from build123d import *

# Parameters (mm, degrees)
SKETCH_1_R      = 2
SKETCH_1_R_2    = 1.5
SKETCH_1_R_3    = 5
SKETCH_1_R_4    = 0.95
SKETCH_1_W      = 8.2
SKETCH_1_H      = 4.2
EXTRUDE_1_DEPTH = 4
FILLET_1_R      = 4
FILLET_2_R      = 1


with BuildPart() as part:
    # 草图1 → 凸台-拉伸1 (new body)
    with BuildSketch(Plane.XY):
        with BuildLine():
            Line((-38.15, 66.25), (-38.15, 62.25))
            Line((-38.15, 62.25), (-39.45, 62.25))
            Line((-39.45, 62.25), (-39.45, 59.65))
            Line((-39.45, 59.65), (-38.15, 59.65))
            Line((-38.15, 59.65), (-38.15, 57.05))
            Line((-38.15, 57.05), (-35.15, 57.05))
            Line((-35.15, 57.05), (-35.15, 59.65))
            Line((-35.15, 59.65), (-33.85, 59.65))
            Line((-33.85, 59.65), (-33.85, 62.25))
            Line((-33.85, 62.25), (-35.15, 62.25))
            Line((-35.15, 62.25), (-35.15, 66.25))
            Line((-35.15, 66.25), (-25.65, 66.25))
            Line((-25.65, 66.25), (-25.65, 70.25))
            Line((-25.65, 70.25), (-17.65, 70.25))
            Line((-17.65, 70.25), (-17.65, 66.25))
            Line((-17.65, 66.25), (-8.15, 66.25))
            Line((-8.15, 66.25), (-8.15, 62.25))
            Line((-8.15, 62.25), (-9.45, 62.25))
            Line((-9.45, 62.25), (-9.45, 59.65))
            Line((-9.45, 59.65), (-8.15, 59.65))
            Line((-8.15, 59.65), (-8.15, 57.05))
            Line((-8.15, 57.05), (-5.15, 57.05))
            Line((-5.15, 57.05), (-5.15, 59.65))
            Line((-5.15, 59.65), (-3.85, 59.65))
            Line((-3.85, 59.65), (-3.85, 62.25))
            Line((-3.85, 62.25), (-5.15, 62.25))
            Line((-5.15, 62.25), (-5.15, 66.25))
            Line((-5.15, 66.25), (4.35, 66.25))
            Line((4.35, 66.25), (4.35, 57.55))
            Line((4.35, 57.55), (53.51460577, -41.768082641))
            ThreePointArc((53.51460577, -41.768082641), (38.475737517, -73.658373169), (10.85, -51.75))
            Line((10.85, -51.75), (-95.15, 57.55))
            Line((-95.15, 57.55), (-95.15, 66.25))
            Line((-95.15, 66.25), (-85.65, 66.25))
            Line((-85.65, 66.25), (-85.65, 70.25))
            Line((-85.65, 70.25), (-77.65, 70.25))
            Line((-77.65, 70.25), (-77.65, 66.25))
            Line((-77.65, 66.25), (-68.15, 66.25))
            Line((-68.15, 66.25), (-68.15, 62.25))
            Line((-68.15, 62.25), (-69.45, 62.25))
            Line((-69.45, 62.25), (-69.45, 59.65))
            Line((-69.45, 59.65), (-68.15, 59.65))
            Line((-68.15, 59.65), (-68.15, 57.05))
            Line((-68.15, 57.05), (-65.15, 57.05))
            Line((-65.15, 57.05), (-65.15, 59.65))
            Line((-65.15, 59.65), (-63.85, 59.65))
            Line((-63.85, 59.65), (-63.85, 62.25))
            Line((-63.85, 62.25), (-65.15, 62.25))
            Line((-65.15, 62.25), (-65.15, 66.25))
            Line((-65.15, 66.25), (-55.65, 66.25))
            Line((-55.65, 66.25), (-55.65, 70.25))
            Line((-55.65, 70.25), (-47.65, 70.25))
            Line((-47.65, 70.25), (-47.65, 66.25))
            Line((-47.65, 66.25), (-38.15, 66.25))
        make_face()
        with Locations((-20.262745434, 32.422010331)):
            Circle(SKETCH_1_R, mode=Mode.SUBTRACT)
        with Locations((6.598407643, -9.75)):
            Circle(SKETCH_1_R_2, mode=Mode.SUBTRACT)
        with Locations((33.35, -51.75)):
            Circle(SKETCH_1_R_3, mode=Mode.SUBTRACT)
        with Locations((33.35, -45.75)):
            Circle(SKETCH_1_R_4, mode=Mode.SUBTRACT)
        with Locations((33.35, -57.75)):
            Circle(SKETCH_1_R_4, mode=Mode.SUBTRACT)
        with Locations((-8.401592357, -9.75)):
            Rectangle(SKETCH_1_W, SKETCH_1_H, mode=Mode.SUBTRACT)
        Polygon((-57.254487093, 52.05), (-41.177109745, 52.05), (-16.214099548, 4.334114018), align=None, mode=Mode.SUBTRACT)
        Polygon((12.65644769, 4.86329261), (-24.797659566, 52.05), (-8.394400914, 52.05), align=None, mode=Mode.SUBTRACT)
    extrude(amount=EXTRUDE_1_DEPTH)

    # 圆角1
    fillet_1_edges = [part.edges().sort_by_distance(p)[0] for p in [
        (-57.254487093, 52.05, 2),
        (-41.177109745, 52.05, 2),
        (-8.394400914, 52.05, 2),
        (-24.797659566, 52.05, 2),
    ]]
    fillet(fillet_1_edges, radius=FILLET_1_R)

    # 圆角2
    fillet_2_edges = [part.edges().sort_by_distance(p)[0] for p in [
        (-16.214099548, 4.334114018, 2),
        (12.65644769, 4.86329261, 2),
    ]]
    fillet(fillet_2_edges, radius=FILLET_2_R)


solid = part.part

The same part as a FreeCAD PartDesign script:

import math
import FreeCAD as App
import Part
import Sketcher
from FreeCAD import Vector
Q = App.Units.Quantity


def edges_at(feature, points):
    """Names of the edges that pass closest to the given points."""
    edges = feature.Shape.Edges
    near = lambda p: min(range(len(edges)), key=lambda i: edges[i].distToShape(Part.Vertex(*p))[0])
    return sorted({f"Edge{near(p) + 1}" for p in points})

doc = App.newDocument("Part")
body = doc.addObject("PartDesign::Body", "Body")

# Sketch on XY plane
sketch1 = body.newObject("Sketcher::SketchObject", "Sketch")
sketch1.AttachmentSupport = (doc.getObject("XY_Plane"), [""])
sketch1.MapMode = "FlatFace"
sketch1.addGeometry(Part.LineSegment(Vector(-38.1, 62.2, 0), Vector(-38.1, 66.2, 0)), False)
sketch1.addGeometry(Part.LineSegment(Vector(-38.1, 66.2, 0), Vector(-47.6, 66.2, 0)), False)
sketch1.addGeometry(Part.LineSegment(Vector(-47.6, 66.2, 0), Vector(-47.6, 70.2, 0)), False)
sketch1.addGeometry(Part.LineSegment(Vector(-47.6, 70.2, 0), Vector(-55.6, 70.2, 0)), False)
sketch1.addGeometry(Part.LineSegment(Vector(-55.6, 70.2, 0), Vector(-55.6, 66.2, 0)), False)
sketch1.addGeometry(Part.LineSegment(Vector(-55.6, 66.2, 0), Vector(-65.2, 66.2, 0)), False)
sketch1.addGeometry(Part.LineSegment(Vector(-65.2, 66.2, 0), Vector(-65.2, 62.2, 0)), False)
sketch1.addGeometry(Part.LineSegment(Vector(-65.2, 62.2, 0), Vector(-63.9, 62.2, 0)), False)
sketch1.addGeometry(Part.LineSegment(Vector(-63.9, 62.2, 0), Vector(-63.9, 59.6, 0)), False)
sketch1.addGeometry(Part.LineSegment(Vector(-63.9, 59.6, 0), Vector(-65.2, 59.6, 0)), False)
sketch1.addGeometry(Part.LineSegment(Vector(-65.2, 59.6, 0), Vector(-65.2, 57, 0)), False)
sketch1.addGeometry(Part.LineSegment(Vector(-65.2, 57, 0), Vector(-68.2, 57, 0)), False)
sketch1.addGeometry(Part.LineSegment(Vector(-68.2, 57, 0), Vector(-68.2, 59.6, 0)), False)
sketch1.addGeometry(Part.LineSegment(Vector(-68.2, 59.6, 0), Vector(-69.5, 59.6, 0)), False)
sketch1.addGeometry(Part.LineSegment(Vector(-69.5, 59.6, 0), Vector(-69.5, 62.2, 0)), False)
sketch1.addGeometry(Part.LineSegment(Vector(-69.5, 62.2, 0), Vector(-68.2, 62.2, 0)), False)
sketch1.addGeometry(Part.LineSegment(Vector(-68.2, 62.2, 0), Vector(-68.2, 66.2, 0)), False)
sketch1.addGeometry(Part.LineSegment(Vector(-68.2, 66.2, 0), Vector(-77.7, 66.2, 0)), False)
sketch1.addGeometry(Part.LineSegment(Vector(-77.7, 66.2, 0), Vector(-77.7, 70.2, 0)), False)
sketch1.addGeometry(Part.LineSegment(Vector(-77.7, 70.2, 0), Vector(-85.7, 70.2, 0)), False)
sketch1.addGeometry(Part.LineSegment(Vector(-85.7, 70.2, 0), Vector(-85.7, 66.2, 0)), False)
sketch1.addGeometry(Part.LineSegment(Vector(-85.7, 66.2, 0), Vector(-95.2, 66.2, 0)), False)
sketch1.addGeometry(Part.LineSegment(Vector(-95.2, 66.2, 0), Vector(-95.2, 57.5, 0)), False)
sketch1.addGeometry(Part.LineSegment(Vector(-95.2, 57.5, 0), Vector(10.8, -51.8, 0)), False)
sketch1.addGeometry(Part.ArcOfCircle(Part.Circle(Vector(33.4, -51.8, 0), Vector(0, 0, 1), 22.5), math.radians(180), math.radians(386)), False)
sketch1.addGeometry(Part.LineSegment(Vector(53.5, -41.8, 0), Vector(4.3, 57.5, 0)), False)
sketch1.addGeometry(Part.LineSegment(Vector(4.3, 57.5, 0), Vector(4.3, 66.2, 0)), False)
sketch1.addGeometry(Part.LineSegment(Vector(4.3, 66.2, 0), Vector(-5.2, 66.2, 0)), False)
sketch1.addGeometry(Part.LineSegment(Vector(-5.2, 66.2, 0), Vector(-5.2, 62.2, 0)), False)
sketch1.addGeometry(Part.LineSegment(Vector(-5.2, 62.2, 0), Vector(-3.9, 62.2, 0)), False)
sketch1.addGeometry(Part.LineSegment(Vector(-3.9, 62.2, 0), Vector(-3.9, 59.6, 0)), False)
sketch1.addGeometry(Part.LineSegment(Vector(-3.9, 59.6, 0), Vector(-5.2, 59.6, 0)), False)
sketch1.addGeometry(Part.LineSegment(Vector(-5.2, 59.6, 0), Vector(-5.2, 57, 0)), False)
sketch1.addGeometry(Part.LineSegment(Vector(-5.2, 57, 0), Vector(-8.2, 57, 0)), False)
sketch1.addGeometry(Part.LineSegment(Vector(-8.2, 57, 0), Vector(-8.2, 59.6, 0)), False)
sketch1.addGeometry(Part.LineSegment(Vector(-8.2, 59.6, 0), Vector(-9.4, 59.6, 0)), False)
sketch1.addGeometry(Part.LineSegment(Vector(-9.4, 59.6, 0), Vector(-9.4, 62.2, 0)), False)
sketch1.addGeometry(Part.LineSegment(Vector(-9.4, 62.2, 0), Vector(-8.2, 62.2, 0)), False)
sketch1.addGeometry(Part.LineSegment(Vector(-8.2, 62.2, 0), Vector(-8.2, 66.2, 0)), False)
sketch1.addGeometry(Part.LineSegment(Vector(-8.2, 66.2, 0), Vector(-17.6, 66.2, 0)), False)
sketch1.addGeometry(Part.LineSegment(Vector(-17.6, 66.2, 0), Vector(-17.6, 70.2, 0)), False)
sketch1.addGeometry(Part.LineSegment(Vector(-17.6, 70.2, 0), Vector(-25.6, 70.2, 0)), False)
sketch1.addGeometry(Part.LineSegment(Vector(-25.6, 70.2, 0), Vector(-25.6, 66.2, 0)), False)
sketch1.addGeometry(Part.LineSegment(Vector(-25.6, 66.2, 0), Vector(-35.1, 66.2, 0)), False)
sketch1.addGeometry(Part.LineSegment(Vector(-35.1, 66.2, 0), Vector(-35.1, 62.2, 0)), False)
sketch1.addGeometry(Part.LineSegment(Vector(-35.1, 62.2, 0), Vector(-33.9, 62.2, 0)), False)
sketch1.addGeometry(Part.LineSegment(Vector(-33.9, 62.2, 0), Vector(-33.9, 59.6, 0)), False)
sketch1.addGeometry(Part.LineSegment(Vector(-33.9, 59.6, 0), Vector(-35.1, 59.6, 0)), False)
sketch1.addGeometry(Part.LineSegment(Vector(-35.1, 59.6, 0), Vector(-35.1, 57, 0)), False)
sketch1.addGeometry(Part.LineSegment(Vector(-35.1, 57, 0), Vector(-38.1, 57, 0)), False)
sketch1.addGeometry(Part.LineSegment(Vector(-38.1, 57, 0), Vector(-38.1, 59.6, 0)), False)
sketch1.addGeometry(Part.LineSegment(Vector(-38.1, 59.6, 0), Vector(-39.5, 59.6, 0)), False)
sketch1.addGeometry(Part.LineSegment(Vector(-39.5, 59.6, 0), Vector(-39.5, 62.2, 0)), False)
sketch1.addGeometry(Part.LineSegment(Vector(-39.5, 62.2, 0), Vector(-38.1, 62.2, 0)), False)
sketch1.addGeometry(Part.Circle(Vector(33.4, -57.8, 0), Vector(0, 0, 1), 0.9), False)
sketch1.addGeometry(Part.Circle(Vector(33.4, -51.8, 0), Vector(0, 0, 1), 5), False)
sketch1.addGeometry(Part.Circle(Vector(33.4, -45.8, 0), Vector(0, 0, 1), 0.9), False)
sketch1.addGeometry(Part.Circle(Vector(6.6, -9.8, 0), Vector(0, 0, 1), 1.5), False)
sketch1.addGeometry(Part.LineSegment(Vector(-12.5, -11.8, 0), Vector(-12.5, -7.7, 0)), False)
sketch1.addGeometry(Part.LineSegment(Vector(-12.5, -7.7, 0), Vector(-4.3, -7.7, 0)), False)
sketch1.addGeometry(Part.LineSegment(Vector(-4.3, -7.7, 0), Vector(-4.3, -11.8, 0)), False)
sketch1.addGeometry(Part.LineSegment(Vector(-4.3, -11.8, 0), Vector(-12.5, -11.8, 0)), False)
sketch1.addGeometry(Part.LineSegment(Vector(12.7, 4.9, 0), Vector(-24.8, 52, 0)), False)
sketch1.addGeometry(Part.LineSegment(Vector(-24.8, 52, 0), Vector(-8.4, 52, 0)), False)
sketch1.addGeometry(Part.LineSegment(Vector(-8.4, 52, 0), Vector(12.7, 4.9, 0)), False)
sketch1.addGeometry(Part.Circle(Vector(-20.3, 32.4, 0), Vector(0, 0, 1), 2), False)
sketch1.addGeometry(Part.LineSegment(Vector(-57.3, 52, 0), Vector(-41.2, 52, 0)), False)
sketch1.addGeometry(Part.LineSegment(Vector(-41.2, 52, 0), Vector(-16.2, 4.3, 0)), False)
sketch1.addGeometry(Part.LineSegment(Vector(-16.2, 4.3, 0), Vector(-57.3, 52, 0)), False)
sketch1.addConstraint(Sketcher.Constraint("Coincident", 0, 2, 1, 1))
sketch1.addConstraint(Sketcher.Constraint("Coincident", 1, 2, 2, 1))
sketch1.addConstraint(Sketcher.Constraint("Coincident", 2, 2, 3, 1))
sketch1.addConstraint(Sketcher.Constraint("Coincident", 3, 2, 4, 1))
sketch1.addConstraint(Sketcher.Constraint("Coincident", 4, 2, 5, 1))
sketch1.addConstraint(Sketcher.Constraint("Coincident", 5, 2, 6, 1))
sketch1.addConstraint(Sketcher.Constraint("Coincident", 6, 2, 7, 1))
sketch1.addConstraint(Sketcher.Constraint("Coincident", 7, 2, 8, 1))
sketch1.addConstraint(Sketcher.Constraint("Coincident", 8, 2, 9, 1))
sketch1.addConstraint(Sketcher.Constraint("Coincident", 9, 2, 10, 1))
sketch1.addConstraint(Sketcher.Constraint("Coincident", 10, 2, 11, 1))
sketch1.addConstraint(Sketcher.Constraint("Coincident", 11, 2, 12, 1))
sketch1.addConstraint(Sketcher.Constraint("Coincident", 12, 2, 13, 1))
sketch1.addConstraint(Sketcher.Constraint("Coincident", 13, 2, 14, 1))
sketch1.addConstraint(Sketcher.Constraint("Coincident", 14, 2, 15, 1))
sketch1.addConstraint(Sketcher.Constraint("Coincident", 15, 2, 16, 1))
sketch1.addConstraint(Sketcher.Constraint("Coincident", 16, 2, 17, 1))
sketch1.addConstraint(Sketcher.Constraint("Coincident", 17, 2, 18, 1))
sketch1.addConstraint(Sketcher.Constraint("Coincident", 18, 2, 19, 1))
sketch1.addConstraint(Sketcher.Constraint("Coincident", 19, 2, 20, 1))
sketch1.addConstraint(Sketcher.Constraint("Coincident", 20, 2, 21, 1))
sketch1.addConstraint(Sketcher.Constraint("Coincident", 21, 2, 22, 1))
sketch1.addConstraint(Sketcher.Constraint("Coincident", 22, 2, 23, 1))
sketch1.addConstraint(Sketcher.Constraint("Coincident", 23, 2, 24, 1))
sketch1.addConstraint(Sketcher.Constraint("Tangent", 24, 2, 25, 1))
sketch1.addConstraint(Sketcher.Constraint("Coincident", 25, 2, 26, 1))
sketch1.addConstraint(Sketcher.Constraint("Coincident", 26, 2, 27, 1))
sketch1.addConstraint(Sketcher.Constraint("Coincident", 27, 2, 28, 1))
sketch1.addConstraint(Sketcher.Constraint("Coincident", 28, 2, 29, 1))
sketch1.addConstraint(Sketcher.Constraint("Coincident", 29, 2, 30, 1))
sketch1.addConstraint(Sketcher.Constraint("Coincident", 30, 2, 31, 1))
sketch1.addConstraint(Sketcher.Constraint("Coincident", 31, 2, 32, 1))
sketch1.addConstraint(Sketcher.Constraint("Coincident", 32, 2, 33, 1))
sketch1.addConstraint(Sketcher.Constraint("Coincident", 33, 2, 34, 1))
sketch1.addConstraint(Sketcher.Constraint("Coincident", 34, 2, 35, 1))
sketch1.addConstraint(Sketcher.Constraint("Coincident", 35, 2, 36, 1))
sketch1.addConstraint(Sketcher.Constraint("Coincident", 36, 2, 37, 1))
sketch1.addConstraint(Sketcher.Constraint("Coincident", 37, 2, 38, 1))
sketch1.addConstraint(Sketcher.Constraint("Coincident", 38, 2, 39, 1))
sketch1.addConstraint(Sketcher.Constraint("Coincident", 39, 2, 40, 1))
sketch1.addConstraint(Sketcher.Constraint("Coincident", 40, 2, 41, 1))
sketch1.addConstraint(Sketcher.Constraint("Coincident", 41, 2, 42, 1))
sketch1.addConstraint(Sketcher.Constraint("Coincident", 42, 2, 43, 1))
sketch1.addConstraint(Sketcher.Constraint("Coincident", 43, 2, 44, 1))
sketch1.addConstraint(Sketcher.Constraint("Coincident", 44, 2, 45, 1))
sketch1.addConstraint(Sketcher.Constraint("Coincident", 45, 2, 46, 1))
sketch1.addConstraint(Sketcher.Constraint("Coincident", 46, 2, 47, 1))
sketch1.addConstraint(Sketcher.Constraint("Coincident", 47, 2, 48, 1))
sketch1.addConstraint(Sketcher.Constraint("Coincident", 48, 2, 49, 1))
sketch1.addConstraint(Sketcher.Constraint("Coincident", 49, 2, 50, 1))
sketch1.addConstraint(Sketcher.Constraint("Coincident", 50, 2, 51, 1))
sketch1.addConstraint(Sketcher.Constraint("Coincident", 51, 2, 52, 1))
sketch1.addConstraint(Sketcher.Constraint("Coincident", 52, 2, 53, 1))
sketch1.addConstraint(Sketcher.Constraint("Coincident", 53, 2, 0, 1))
sketch1.addConstraint(Sketcher.Constraint("Coincident", 58, 2, 59, 1))
sketch1.addConstraint(Sketcher.Constraint("Coincident", 59, 2, 60, 1))
sketch1.addConstraint(Sketcher.Constraint("Coincident", 60, 2, 61, 1))
sketch1.addConstraint(Sketcher.Constraint("Coincident", 61, 2, 58, 1))
sketch1.addConstraint(Sketcher.Constraint("Coincident", 62, 2, 63, 1))
sketch1.addConstraint(Sketcher.Constraint("Coincident", 63, 2, 64, 1))
sketch1.addConstraint(Sketcher.Constraint("Coincident", 64, 2, 62, 1))
sketch1.addConstraint(Sketcher.Constraint("Coincident", 66, 2, 67, 1))
sketch1.addConstraint(Sketcher.Constraint("Coincident", 67, 2, 68, 1))
sketch1.addConstraint(Sketcher.Constraint("Coincident", 68, 2, 66, 1))
sketch1.addConstraint(Sketcher.Constraint("Vertical", 0))
sketch1.addConstraint(Sketcher.Constraint("Horizontal", 1))
sketch1.addConstraint(Sketcher.Constraint("Vertical", 2))
sketch1.addConstraint(Sketcher.Constraint("Horizontal", 3))
sketch1.addConstraint(Sketcher.Constraint("Vertical", 4))
sketch1.addConstraint(Sketcher.Constraint("Horizontal", 5))
sketch1.addConstraint(Sketcher.Constraint("Vertical", 6))
sketch1.addConstraint(Sketcher.Constraint("Horizontal", 7))
sketch1.addConstraint(Sketcher.Constraint("Vertical", 8))
sketch1.addConstraint(Sketcher.Constraint("Horizontal", 9))
sketch1.addConstraint(Sketcher.Constraint("Vertical", 10))
sketch1.addConstraint(Sketcher.Constraint("Horizontal", 11))
sketch1.addConstraint(Sketcher.Constraint("Vertical", 12))
sketch1.addConstraint(Sketcher.Constraint("Horizontal", 13))
sketch1.addConstraint(Sketcher.Constraint("Vertical", 14))
sketch1.addConstraint(Sketcher.Constraint("Horizontal", 15))
sketch1.addConstraint(Sketcher.Constraint("Vertical", 16))
sketch1.addConstraint(Sketcher.Constraint("Horizontal", 17))
sketch1.addConstraint(Sketcher.Constraint("Vertical", 18))
sketch1.addConstraint(Sketcher.Constraint("Horizontal", 19))
sketch1.addConstraint(Sketcher.Constraint("Vertical", 20))
sketch1.addConstraint(Sketcher.Constraint("Horizontal", 21))
sketch1.addConstraint(Sketcher.Constraint("Vertical", 22))
sketch1.addConstraint(Sketcher.Constraint("Vertical", 26))
sketch1.addConstraint(Sketcher.Constraint("Horizontal", 27))
sketch1.addConstraint(Sketcher.Constraint("Vertical", 28))
sketch1.addConstraint(Sketcher.Constraint("Horizontal", 29))
sketch1.addConstraint(Sketcher.Constraint("Vertical", 30))
sketch1.addConstraint(Sketcher.Constraint("Horizontal", 31))
sketch1.addConstraint(Sketcher.Constraint("Vertical", 32))
sketch1.addConstraint(Sketcher.Constraint("Horizontal", 33))
sketch1.addConstraint(Sketcher.Constraint("Vertical", 34))
sketch1.addConstraint(Sketcher.Constraint("Horizontal", 35))
sketch1.addConstraint(Sketcher.Constraint("Vertical", 36))
sketch1.addConstraint(Sketcher.Constraint("Horizontal", 37))
sketch1.addConstraint(Sketcher.Constraint("Vertical", 38))
sketch1.addConstraint(Sketcher.Constraint("Horizontal", 39))
sketch1.addConstraint(Sketcher.Constraint("Vertical", 40))
sketch1.addConstraint(Sketcher.Constraint("Horizontal", 41))
sketch1.addConstraint(Sketcher.Constraint("Vertical", 42))
sketch1.addConstraint(Sketcher.Constraint("Horizontal", 43))
sketch1.addConstraint(Sketcher.Constraint("Vertical", 44))
sketch1.addConstraint(Sketcher.Constraint("Horizontal", 45))
sketch1.addConstraint(Sketcher.Constraint("Vertical", 46))
sketch1.addConstraint(Sketcher.Constraint("Horizontal", 47))
sketch1.addConstraint(Sketcher.Constraint("Vertical", 48))
sketch1.addConstraint(Sketcher.Constraint("Horizontal", 49))
sketch1.addConstraint(Sketcher.Constraint("Vertical", 50))
sketch1.addConstraint(Sketcher.Constraint("Horizontal", 51))
sketch1.addConstraint(Sketcher.Constraint("Vertical", 52))
sketch1.addConstraint(Sketcher.Constraint("Horizontal", 53))
sketch1.addConstraint(Sketcher.Constraint("Vertical", 58))
sketch1.addConstraint(Sketcher.Constraint("Horizontal", 59))
sketch1.addConstraint(Sketcher.Constraint("Vertical", 60))
sketch1.addConstraint(Sketcher.Constraint("Horizontal", 61))
sketch1.addConstraint(Sketcher.Constraint("Horizontal", 63))
sketch1.addConstraint(Sketcher.Constraint("Horizontal", 66))
sketch1.addConstraint(Sketcher.Constraint("Coincident", 55, 3, 24, 3))
sketch1.addConstraint(Sketcher.Constraint("Equal", 54, 56))
sketch1.addConstraint(Sketcher.Constraint("Horizontal", 1, 2, 4, 2))
sketch1.addConstraint(Sketcher.Constraint("Horizontal", 9, 2, 12, 2))
sketch1.addConstraint(Sketcher.Constraint("Horizontal", 7, 2, 14, 2))
sketch1.addConstraint(Sketcher.Constraint("Horizontal", 5, 2, 16, 2))
sketch1.addConstraint(Sketcher.Constraint("Horizontal", 3, 2, 18, 2))
sketch1.addConstraint(Sketcher.Constraint("Horizontal", 17, 2, 20, 2))
sketch1.addConstraint(Sketcher.Constraint("Horizontal", 55, 3, 23, 2))
sketch1.addConstraint(Sketcher.Constraint("Horizontal", 22, 2, 25, 2))
sketch1.addConstraint(Sketcher.Constraint("Horizontal", 21, 2, 26, 2))
sketch1.addConstraint(Sketcher.Constraint("Horizontal", 15, 2, 28, 2))
sketch1.addConstraint(Sketcher.Constraint("Horizontal", 13, 2, 30, 2))
sketch1.addConstraint(Sketcher.Constraint("Horizontal", 11, 2, 32, 2))
sketch1.addConstraint(Sketcher.Constraint("Horizontal", 31, 2, 34, 2))
sketch1.addConstraint(Sketcher.Constraint("Horizontal", 29, 2, 36, 2))
sketch1.addConstraint(Sketcher.Constraint("Horizontal", 27, 2, 38, 2))
sketch1.addConstraint(Sketcher.Constraint("Horizontal", 19, 2, 40, 2))
sketch1.addConstraint(Sketcher.Constraint("Horizontal", 39, 2, 42, 2))
sketch1.addConstraint(Sketcher.Constraint("Horizontal", 37, 2, 44, 2))
sketch1.addConstraint(Sketcher.Constraint("Horizontal", 35, 2, 46, 2))
sketch1.addConstraint(Sketcher.Constraint("Horizontal", 33, 2, 48, 2))
sketch1.addConstraint(Sketcher.Constraint("Horizontal", 47, 2, 50, 2))
sketch1.addConstraint(Sketcher.Constraint("Horizontal", 45, 2, 52, 2))
sketch1.addConstraint(Sketcher.Constraint("Horizontal", 63, 2, 66, 2))
sketch1.addConstraint(Sketcher.Constraint("Vertical", 24, 3, 54, 3))
sketch1.addConstraint(Sketcher.Constraint("Vertical", 55, 3, 56, 3))
sketch1.addConstraint(Sketcher.Constraint("Vertical", 6, 2, 9, 2))
sketch1.addConstraint(Sketcher.Constraint("Vertical", 12, 2, 15, 2))
sketch1.addConstraint(Sketcher.Constraint("Vertical", 28, 2, 31, 2))
sketch1.addConstraint(Sketcher.Constraint("Vertical", 34, 2, 37, 2))
sketch1.addConstraint(Sketcher.Constraint("Vertical", 44, 2, 47, 2))
sketch1.addConstraint(Sketcher.Constraint("Vertical", 0, 2, 49, 2))
sketch1.addConstraint(Sketcher.Constraint("Equal", 1, 5))
sketch1.addConstraint(Sketcher.Constraint("Equal", 9, 13))
sketch1.addConstraint(Sketcher.Constraint("Equal", 5, 17))
sketch1.addConstraint(Sketcher.Constraint("Equal", 3, 19))
sketch1.addConstraint(Sketcher.Constraint("Equal", 17, 21))
sketch1.addConstraint(Sketcher.Constraint("Equal", 21, 27))
sketch1.addConstraint(Sketcher.Constraint("Equal", 15, 29))
sketch1.addConstraint(Sketcher.Constraint("Equal", 11, 33))
sketch1.addConstraint(Sketcher.Constraint("Equal", 31, 35))
sketch1.addConstraint(Sketcher.Constraint("Equal", 27, 39))
sketch1.addConstraint(Sketcher.Constraint("Equal", 19, 41))
sketch1.addConstraint(Sketcher.Constraint("Equal", 39, 43))
sketch1.addConstraint(Sketcher.Constraint("Equal", 37, 45))
sketch1.addConstraint(Sketcher.Constraint("Equal", 33, 49))
sketch1.addConstraint(Sketcher.Constraint("Equal", 47, 51))
sketch1.addConstraint(Sketcher.Constraint("Equal", 0, 2))
sketch1.addConstraint(Sketcher.Constraint("Equal", 8, 10))
sketch1.addConstraint(Sketcher.Constraint("Diameter", 55, Q("10 mm")))
sketch1.addConstraint(Sketcher.Constraint("Diameter", 57, Q("3 mm")))
sketch1.addConstraint(Sketcher.Constraint("Diameter", 65, Q("4 mm")))
sketch1.addConstraint(Sketcher.Constraint("Diameter", 54, Q("1.9 mm")))
sketch1.addConstraint(Sketcher.Constraint("Radius", 24, Q("22.5 mm")))
sketch1.addConstraint(Sketcher.Constraint("DistanceX", 3, 2, 3, 1, Q("8 mm")))
sketch1.addConstraint(Sketcher.Constraint("DistanceX", 11, 2, 11, 1, Q("3 mm")))
sketch1.addConstraint(Sketcher.Constraint("DistanceY", 0, 1, 0, 2, Q("4 mm")))
sketch1.addConstraint(Sketcher.Constraint("DistanceX", 1, 2, 1, 1, Q("9.5 mm")))
sketch1.addConstraint(Sketcher.Constraint("DistanceX", 7, 1, 7, 2, Q("1.3 mm")))
sketch1.addConstraint(Sketcher.Constraint("DistanceX", 59, 1, 59, 2, Q("8.2 mm")))
sketch1.addConstraint(Sketcher.Constraint("DistanceY", 8, 2, 8, 1, Q("2.6 mm")))
sketch1.addConstraint(Sketcher.Constraint("DistanceY", 22, 2, 22, 1, Q("8.7 mm")))
sketch1.addConstraint(Sketcher.Constraint("DistanceY", 58, 1, 58, 2, Q("4.2 mm")))
sketch1.addConstraint(Sketcher.Constraint("DistanceX", -1, 1, 24, 3, Q("33.35 mm")))
sketch1.addConstraint(Sketcher.Constraint("DistanceY", 24, 3, -1, 1, Q("51.75 mm")))
sketch1.addConstraint(Sketcher.Constraint("DistanceY", 54, 3, -1, 1, Q("57.75 mm")))
sketch1.addConstraint(Sketcher.Constraint("DistanceY", 56, 3, -1, 1, Q("45.75 mm")))
sketch1.addConstraint(Sketcher.Constraint("DistanceY", 57, 3, -1, 1, Q("9.75 mm")))
sketch1.addConstraint(Sketcher.Constraint("DistanceX", 0, 2, -1, 1, Q("38.15 mm")))
sketch1.addConstraint(Sketcher.Constraint("DistanceY", -1, 1, 0, 2, Q("66.25 mm")))
sketch1.addConstraint(Sketcher.Constraint("DistanceY", 58, 2, -1, 1, Q("7.65 mm")))
sketch1.addConstraint(Sketcher.Constraint("DistanceY", -1, 1, 62, 2, Q("52.05 mm")))
sketch1.addConstraint(Sketcher.Constraint("DistanceX", 63, 1, 63, 2, Q("16.403259 mm")))
sketch1.addConstraint(Sketcher.Constraint("DistanceX", 63, 2, -1, 1, Q("8.394401 mm")))
sketch1.addConstraint(Sketcher.Constraint("DistanceX", 67, 2, -1, 1, Q("16.2141 mm")))
sketch1.addConstraint(Sketcher.Constraint("DistanceX", 66, 1, 66, 2, Q("16.077377 mm")))
sketch1.addConstraint(Sketcher.Constraint("DistanceY", -1, 1, 65, 3, Q("32.42201 mm")))
sketch1.addConstraint(Sketcher.Constraint("DistanceX", 66, 2, -1, 1, Q("41.17711 mm")))
sketch1.addConstraint(Sketcher.Constraint("Distance", 62, Q("60.244465 mm")))
sketch1.addConstraint(Sketcher.Constraint("Distance", 64, Q("51.669368 mm")))
sketch1.addConstraint(Sketcher.Constraint("Distance", 67, Q("53.851255 mm")))
sketch1.addConstraint(Sketcher.Constraint("DistanceX", -1, 1, 57, 3, Q("6.598408 mm")))
sketch1.addConstraint(Sketcher.Constraint("DistanceX", 65, 3, -1, 1, Q("20.262745 mm")))
sketch1.addConstraint(Sketcher.Constraint("DistanceX", 58, 2, -1, 1, Q("12.501592 mm")))
pad1 = body.newObject("PartDesign::Pad", "Pad")
pad1.Profile = sketch1
pad1.Length = 4
doc.recompute()

fillet = body.newObject("PartDesign::Fillet", "Fillet")
fillet.Base = (pad1, edges_at(pad1, [
    (-57.254, 52.05, 2),
    (-41.177, 52.05, 2),
    (-8.394, 52.05, 2),
    (-24.798, 52.05, 2),
]))
fillet.Radius = 4
doc.recompute()

fillet2 = body.newObject("PartDesign::Fillet", "Fillet001")
fillet2.Base = (fillet, edges_at(fillet, [(-16.214, 4.334, 2), (12.656, 4.863, 2)]))
fillet2.Radius = 1

doc.recompute()
